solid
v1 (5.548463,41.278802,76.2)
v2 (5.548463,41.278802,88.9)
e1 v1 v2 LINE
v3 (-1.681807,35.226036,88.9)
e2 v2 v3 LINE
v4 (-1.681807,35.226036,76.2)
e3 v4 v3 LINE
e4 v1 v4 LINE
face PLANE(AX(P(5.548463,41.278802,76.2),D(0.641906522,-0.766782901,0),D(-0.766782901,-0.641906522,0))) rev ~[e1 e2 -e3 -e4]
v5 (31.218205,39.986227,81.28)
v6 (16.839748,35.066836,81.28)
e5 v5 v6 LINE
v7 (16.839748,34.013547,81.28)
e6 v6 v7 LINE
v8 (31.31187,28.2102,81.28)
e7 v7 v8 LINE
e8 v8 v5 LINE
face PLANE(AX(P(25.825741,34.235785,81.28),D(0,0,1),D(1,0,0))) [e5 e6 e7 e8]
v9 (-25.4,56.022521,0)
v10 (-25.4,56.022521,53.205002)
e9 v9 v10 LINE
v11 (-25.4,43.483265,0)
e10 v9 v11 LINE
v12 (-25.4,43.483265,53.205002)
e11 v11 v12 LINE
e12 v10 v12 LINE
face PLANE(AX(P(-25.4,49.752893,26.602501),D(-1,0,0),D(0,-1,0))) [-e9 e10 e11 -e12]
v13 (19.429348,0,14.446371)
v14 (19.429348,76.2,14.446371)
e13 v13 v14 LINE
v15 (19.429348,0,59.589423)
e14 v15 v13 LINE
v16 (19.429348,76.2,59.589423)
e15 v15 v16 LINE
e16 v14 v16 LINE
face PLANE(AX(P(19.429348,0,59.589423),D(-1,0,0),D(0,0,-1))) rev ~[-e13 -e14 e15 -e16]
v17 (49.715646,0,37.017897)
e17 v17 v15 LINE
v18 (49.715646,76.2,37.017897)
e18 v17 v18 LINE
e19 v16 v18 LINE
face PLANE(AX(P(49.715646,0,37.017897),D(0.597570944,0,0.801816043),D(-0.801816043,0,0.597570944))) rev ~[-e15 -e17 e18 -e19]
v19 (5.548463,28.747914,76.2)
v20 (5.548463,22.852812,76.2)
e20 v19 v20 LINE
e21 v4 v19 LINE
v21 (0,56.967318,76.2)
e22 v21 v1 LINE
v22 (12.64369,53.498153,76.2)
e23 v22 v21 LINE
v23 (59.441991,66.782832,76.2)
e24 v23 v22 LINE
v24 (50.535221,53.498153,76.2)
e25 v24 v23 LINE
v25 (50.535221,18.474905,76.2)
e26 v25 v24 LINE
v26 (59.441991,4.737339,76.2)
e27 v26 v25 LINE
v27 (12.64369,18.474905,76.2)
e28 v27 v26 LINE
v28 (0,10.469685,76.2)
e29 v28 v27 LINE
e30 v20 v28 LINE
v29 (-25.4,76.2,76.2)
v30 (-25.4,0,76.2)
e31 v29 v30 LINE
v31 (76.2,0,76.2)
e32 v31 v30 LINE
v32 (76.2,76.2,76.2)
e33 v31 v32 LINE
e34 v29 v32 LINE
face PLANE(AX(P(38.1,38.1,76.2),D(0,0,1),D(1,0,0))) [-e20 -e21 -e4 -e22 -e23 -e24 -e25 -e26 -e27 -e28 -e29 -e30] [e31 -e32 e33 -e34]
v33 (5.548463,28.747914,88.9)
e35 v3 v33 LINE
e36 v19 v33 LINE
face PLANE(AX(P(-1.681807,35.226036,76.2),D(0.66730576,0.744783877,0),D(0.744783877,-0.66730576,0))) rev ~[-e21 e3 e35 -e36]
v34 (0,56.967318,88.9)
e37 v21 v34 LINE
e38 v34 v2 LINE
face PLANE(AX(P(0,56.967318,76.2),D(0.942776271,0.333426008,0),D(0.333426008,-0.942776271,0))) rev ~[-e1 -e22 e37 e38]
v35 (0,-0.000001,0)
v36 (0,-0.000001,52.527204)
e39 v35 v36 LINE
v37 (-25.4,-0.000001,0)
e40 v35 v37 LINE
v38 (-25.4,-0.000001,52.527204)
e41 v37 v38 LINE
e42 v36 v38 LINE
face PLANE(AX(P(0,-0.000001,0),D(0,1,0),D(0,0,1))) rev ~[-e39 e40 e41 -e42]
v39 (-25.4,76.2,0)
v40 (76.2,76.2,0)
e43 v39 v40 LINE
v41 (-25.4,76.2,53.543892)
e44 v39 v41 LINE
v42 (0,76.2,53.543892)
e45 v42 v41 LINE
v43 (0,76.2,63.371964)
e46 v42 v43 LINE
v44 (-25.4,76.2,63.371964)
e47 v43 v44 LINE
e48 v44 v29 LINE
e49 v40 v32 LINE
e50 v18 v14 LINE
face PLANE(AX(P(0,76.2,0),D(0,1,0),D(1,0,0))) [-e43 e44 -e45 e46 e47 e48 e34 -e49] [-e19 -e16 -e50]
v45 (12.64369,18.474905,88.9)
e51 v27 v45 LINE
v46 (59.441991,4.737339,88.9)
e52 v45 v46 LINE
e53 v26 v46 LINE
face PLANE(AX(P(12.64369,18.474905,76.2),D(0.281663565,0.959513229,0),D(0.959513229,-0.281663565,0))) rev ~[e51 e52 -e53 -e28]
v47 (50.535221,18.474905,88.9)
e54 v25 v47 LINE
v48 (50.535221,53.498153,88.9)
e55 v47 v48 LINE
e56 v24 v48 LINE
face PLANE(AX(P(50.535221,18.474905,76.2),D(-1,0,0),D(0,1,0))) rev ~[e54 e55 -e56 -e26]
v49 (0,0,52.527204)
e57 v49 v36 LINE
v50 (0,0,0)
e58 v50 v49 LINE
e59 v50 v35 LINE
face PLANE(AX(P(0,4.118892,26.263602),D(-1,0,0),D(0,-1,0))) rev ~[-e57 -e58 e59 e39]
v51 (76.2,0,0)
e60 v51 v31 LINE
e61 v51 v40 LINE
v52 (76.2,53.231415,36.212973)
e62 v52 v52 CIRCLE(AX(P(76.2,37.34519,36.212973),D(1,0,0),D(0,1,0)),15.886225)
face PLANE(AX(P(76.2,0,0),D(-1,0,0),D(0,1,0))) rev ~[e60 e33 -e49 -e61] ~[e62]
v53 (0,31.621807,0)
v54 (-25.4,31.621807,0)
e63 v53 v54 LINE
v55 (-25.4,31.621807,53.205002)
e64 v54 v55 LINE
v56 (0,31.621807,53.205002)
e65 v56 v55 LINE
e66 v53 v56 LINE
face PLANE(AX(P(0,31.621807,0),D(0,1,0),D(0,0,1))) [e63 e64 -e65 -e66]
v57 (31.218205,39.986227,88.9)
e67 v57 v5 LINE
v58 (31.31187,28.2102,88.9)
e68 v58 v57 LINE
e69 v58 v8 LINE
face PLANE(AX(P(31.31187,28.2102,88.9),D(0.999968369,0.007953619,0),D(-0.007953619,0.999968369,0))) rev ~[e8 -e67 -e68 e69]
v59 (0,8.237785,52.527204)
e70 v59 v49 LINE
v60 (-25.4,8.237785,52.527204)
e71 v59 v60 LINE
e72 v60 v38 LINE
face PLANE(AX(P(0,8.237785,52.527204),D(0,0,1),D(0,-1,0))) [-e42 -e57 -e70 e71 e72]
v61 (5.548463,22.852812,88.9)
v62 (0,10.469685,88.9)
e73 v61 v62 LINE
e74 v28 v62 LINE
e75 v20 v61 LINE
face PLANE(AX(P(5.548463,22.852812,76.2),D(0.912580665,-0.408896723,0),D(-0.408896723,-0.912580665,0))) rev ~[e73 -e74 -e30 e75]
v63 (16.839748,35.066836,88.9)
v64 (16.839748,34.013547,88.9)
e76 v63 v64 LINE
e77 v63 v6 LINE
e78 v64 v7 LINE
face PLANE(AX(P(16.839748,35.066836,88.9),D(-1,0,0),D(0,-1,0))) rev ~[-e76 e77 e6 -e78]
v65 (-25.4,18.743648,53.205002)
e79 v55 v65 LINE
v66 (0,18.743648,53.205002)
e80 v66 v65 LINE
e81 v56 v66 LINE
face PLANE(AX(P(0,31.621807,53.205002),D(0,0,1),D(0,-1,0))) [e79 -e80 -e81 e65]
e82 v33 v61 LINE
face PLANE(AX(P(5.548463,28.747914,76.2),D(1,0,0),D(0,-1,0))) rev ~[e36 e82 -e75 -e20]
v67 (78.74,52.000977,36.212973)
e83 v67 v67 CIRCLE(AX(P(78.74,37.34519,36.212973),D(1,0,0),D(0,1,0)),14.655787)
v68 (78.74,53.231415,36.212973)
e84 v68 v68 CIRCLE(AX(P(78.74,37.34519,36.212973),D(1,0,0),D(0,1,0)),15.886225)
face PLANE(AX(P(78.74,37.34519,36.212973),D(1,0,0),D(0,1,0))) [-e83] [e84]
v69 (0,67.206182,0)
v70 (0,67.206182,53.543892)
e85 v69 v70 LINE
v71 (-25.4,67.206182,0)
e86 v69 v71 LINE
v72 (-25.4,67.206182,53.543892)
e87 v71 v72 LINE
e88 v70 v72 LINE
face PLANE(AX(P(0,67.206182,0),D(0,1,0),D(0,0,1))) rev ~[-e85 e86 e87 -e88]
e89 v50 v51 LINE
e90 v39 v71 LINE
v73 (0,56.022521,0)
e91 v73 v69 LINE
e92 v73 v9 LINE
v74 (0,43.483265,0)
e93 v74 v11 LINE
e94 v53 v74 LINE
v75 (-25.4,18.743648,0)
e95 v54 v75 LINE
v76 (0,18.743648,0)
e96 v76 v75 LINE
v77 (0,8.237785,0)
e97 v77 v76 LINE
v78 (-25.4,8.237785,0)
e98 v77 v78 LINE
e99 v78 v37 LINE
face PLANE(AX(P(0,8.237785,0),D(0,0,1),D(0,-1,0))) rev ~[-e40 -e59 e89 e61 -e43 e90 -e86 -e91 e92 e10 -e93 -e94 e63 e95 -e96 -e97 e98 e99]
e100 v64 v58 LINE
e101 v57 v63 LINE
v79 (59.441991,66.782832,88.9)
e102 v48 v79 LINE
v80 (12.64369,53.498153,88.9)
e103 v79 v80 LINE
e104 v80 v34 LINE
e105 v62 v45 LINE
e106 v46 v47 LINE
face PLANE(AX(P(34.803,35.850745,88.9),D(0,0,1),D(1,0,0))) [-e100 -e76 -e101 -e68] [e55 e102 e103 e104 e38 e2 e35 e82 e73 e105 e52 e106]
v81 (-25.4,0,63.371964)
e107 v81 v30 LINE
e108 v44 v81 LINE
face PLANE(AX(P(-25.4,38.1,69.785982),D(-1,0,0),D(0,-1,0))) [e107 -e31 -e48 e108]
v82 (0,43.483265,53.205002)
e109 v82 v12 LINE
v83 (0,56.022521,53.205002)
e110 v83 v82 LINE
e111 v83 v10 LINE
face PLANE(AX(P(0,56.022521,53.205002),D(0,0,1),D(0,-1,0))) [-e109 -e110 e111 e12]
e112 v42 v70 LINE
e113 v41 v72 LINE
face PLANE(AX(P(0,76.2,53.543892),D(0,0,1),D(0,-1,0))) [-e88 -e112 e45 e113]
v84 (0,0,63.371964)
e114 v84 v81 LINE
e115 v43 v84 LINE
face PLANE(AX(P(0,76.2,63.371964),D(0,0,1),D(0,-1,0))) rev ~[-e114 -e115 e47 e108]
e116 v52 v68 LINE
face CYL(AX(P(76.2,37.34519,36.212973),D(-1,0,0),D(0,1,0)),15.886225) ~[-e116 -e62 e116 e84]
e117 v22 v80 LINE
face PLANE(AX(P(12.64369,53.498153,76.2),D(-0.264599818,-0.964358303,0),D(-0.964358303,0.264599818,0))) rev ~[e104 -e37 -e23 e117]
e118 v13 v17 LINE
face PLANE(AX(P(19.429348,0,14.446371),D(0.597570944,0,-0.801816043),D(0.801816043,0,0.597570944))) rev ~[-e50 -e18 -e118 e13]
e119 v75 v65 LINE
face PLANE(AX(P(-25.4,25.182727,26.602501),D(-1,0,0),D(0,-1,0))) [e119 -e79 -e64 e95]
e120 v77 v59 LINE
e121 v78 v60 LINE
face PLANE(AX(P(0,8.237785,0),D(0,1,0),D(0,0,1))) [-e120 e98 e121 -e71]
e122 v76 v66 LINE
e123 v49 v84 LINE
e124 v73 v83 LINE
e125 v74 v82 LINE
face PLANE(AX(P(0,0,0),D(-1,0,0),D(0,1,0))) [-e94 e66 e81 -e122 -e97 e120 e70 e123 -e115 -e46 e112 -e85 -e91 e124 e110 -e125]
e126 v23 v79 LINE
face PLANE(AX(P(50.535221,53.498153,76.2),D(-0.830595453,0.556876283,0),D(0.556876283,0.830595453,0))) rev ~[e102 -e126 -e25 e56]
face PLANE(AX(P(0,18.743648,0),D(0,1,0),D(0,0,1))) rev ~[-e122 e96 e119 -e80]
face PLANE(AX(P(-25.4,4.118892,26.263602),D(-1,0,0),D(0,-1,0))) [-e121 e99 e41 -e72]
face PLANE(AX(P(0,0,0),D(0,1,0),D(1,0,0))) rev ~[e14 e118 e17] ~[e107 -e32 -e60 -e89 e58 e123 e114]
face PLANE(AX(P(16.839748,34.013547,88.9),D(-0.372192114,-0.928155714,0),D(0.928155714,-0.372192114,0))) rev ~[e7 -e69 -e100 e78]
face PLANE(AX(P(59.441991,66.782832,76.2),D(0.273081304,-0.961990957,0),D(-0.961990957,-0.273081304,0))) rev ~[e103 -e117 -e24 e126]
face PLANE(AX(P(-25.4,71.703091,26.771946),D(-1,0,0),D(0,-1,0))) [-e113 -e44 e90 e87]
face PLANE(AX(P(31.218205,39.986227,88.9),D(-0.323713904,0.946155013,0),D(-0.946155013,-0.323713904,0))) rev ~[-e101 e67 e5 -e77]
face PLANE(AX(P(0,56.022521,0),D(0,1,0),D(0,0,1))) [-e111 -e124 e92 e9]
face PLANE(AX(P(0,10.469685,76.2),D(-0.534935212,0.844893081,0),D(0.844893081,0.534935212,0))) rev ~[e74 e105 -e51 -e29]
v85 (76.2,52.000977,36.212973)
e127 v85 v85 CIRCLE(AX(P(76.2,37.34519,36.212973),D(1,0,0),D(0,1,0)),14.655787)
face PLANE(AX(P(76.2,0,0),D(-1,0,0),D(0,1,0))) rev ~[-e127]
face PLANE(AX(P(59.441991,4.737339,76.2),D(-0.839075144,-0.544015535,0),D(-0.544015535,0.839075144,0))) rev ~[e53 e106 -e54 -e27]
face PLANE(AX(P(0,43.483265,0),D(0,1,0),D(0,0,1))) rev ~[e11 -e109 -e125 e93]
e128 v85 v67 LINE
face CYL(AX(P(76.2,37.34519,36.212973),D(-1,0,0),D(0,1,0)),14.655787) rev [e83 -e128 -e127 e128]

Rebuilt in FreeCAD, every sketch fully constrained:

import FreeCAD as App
import Part
import Sketcher

V = App.Vector
Q = App.Units.Quantity


def add_polygon(sketch, points):
    """Adds a closed chain of lines whose ends are joined by coincident constraints."""
    first, n = sketch.GeometryCount, len(points)
    for a, b in zip(points, points[1:] + points[:1]):
        sketch.addGeometry(Part.LineSegment(App.Vector(*a, 0), App.Vector(*b, 0)), False)
    for i in range(n):
        sketch.addConstraint(Sketcher.Constraint("Coincident", first + i, 2, first + (i + 1) % n, 1))

doc = App.newDocument("Part")
body = doc.addObject("PartDesign::Body", "Body")

sketch1 = body.newObject("Sketcher::SketchObject", "Sketch")
sketch1.AttachmentSupport = (doc.getObject("XY_Plane"), [""])
sketch1.MapMode = "FlatFace"
add_polygon(sketch1, [(0, 76), (0, 0), (76, 0), (76, 76)])
sketch1.addConstraint([
    Sketcher.Constraint("Vertical", 0),
    Sketcher.Constraint("Horizontal", 1),
    Sketcher.Constraint("Vertical", 2),
    Sketcher.Constraint("Horizontal", 3),
    Sketcher.Constraint("Coincident", 0, 2, -1, 1),
    Sketcher.Constraint("Equal", 3, 0),
    Sketcher.Constraint("DistanceX", 1, 1, 1, 2, Q("3 in")),
])
pad1 = body.newObject("PartDesign::Pad", "Pad")
pad1.Profile = sketch1
pad1.Length = Q("3 in")

sketch2 = body.newObject("Sketcher::SketchObject", "Sketch001")
sketch2.AttachmentSupport = (doc.getObject("YZ_Plane"), [""])
sketch2.MapMode = "FlatFace"
add_polygon(sketch2, [(56, 53), (56, 0), (43, 0), (43, 53)])
add_polygon(sketch2, [(32, 53), (32, 0), (19, 0), (19, 53)])
add_polygon(sketch2, [(8, 53), (8, 0), (0, 0), (0, 53)])
add_polygon(sketch2, [(76, 54), (76, 0), (67, 0), (67, 54)])
add_polygon(sketch2, [(76, 76), (76, 63), (0, 63), (0, 76)])
sketch2.addConstraint([
    Sketcher.Constraint("Vertical", 0),
    Sketcher.Constraint("Horizontal", 1),
    Sketcher.Constraint("Vertical", 2),
    Sketcher.Constraint("Horizontal", 3),
    Sketcher.Constraint("Vertical", 4),
    Sketcher.Constraint("Horizontal", 5),
    Sketcher.Constraint("Vertical", 6),
    Sketcher.Constraint("Horizontal", 7),
    Sketcher.Constraint("Vertical", 8),
    Sketcher.Constraint("Horizontal", 9),
    Sketcher.Constraint("Vertical", 10),
    Sketcher.Constraint("Horizontal", 11),
    Sketcher.Constraint("Vertical", 12),
    Sketcher.Constraint("Horizontal", 13),
    Sketcher.Constraint("Vertical", 14),
    Sketcher.Constraint("Horizontal", 15),
    Sketcher.Constraint("Vertical", 16),
    Sketcher.Constraint("Horizontal", 17),
    Sketcher.Constraint("Vertical", 18),
    Sketcher.Constraint("Horizontal", 19),
    Sketcher.Constraint("Coincident", 9, 2, -1, 1),
    Sketcher.Constraint("PointOnObject", 0, 2, -1),
    Sketcher.Constraint("PointOnObject", 4, 2, -1),
    Sketcher.Constraint("PointOnObject", 12, 2, -1),
    Sketcher.Constraint("PointOnObject", 17, 2, -2),
    Sketcher.Constraint("Horizontal", 3, 2, 6, 2),
    Sketcher.Constraint("Vertical", 15, 2, 16, 2),
    Sketcher.Constraint("DistanceX", 17, 2, 17, 1, Q("3 in")),
    Sketcher.Constraint("DistanceY", -1, 1, 18, 2, Q("3 in")),
    Sketcher.Constraint("DistanceY", 8, 2, 8, 1, Q("2.0680002 in")),
    Sketcher.Constraint("DistanceX", 5, 2, 5, 1, 12.878159),
    Sketcher.Constraint("DistanceX", 13, 2, 13, 1, 8.993818),
    Sketcher.Constraint("DistanceY", 10, 2, 6, 2, 0.677798),
    Sketcher.Constraint("DistanceX", 1, 2, 1, 1, 12.539256),
    Sketcher.Constraint("DistanceX", 9, 2, 9, 1, 8.237785),
    Sketcher.Constraint("DistanceY", 12, 2, 12, 1, 53.543892),
    Sketcher.Constraint("DistanceY", 16, 2, 16, 1, 12.828036),
    Sketcher.Constraint("DistanceX", -1, 1, 0, 2, 56.022521),
    Sketcher.Constraint("DistanceX", 4, 2, 1, 2, 11.861459),
])
pad2 = body.newObject("PartDesign::Pad", "Pad001")
pad2.Profile = sketch2
pad2.Length = Q("1 in")
pad2.Reversed = True

sketch3 = body.newObject("Sketcher::SketchObject", "Sketch002")
sketch3.AttachmentSupport = (doc.getObject("XZ_Plane"), [""])
sketch3.MapMode = "FlatFace"
add_polygon(sketch3, [(50, 37), (19, 60), (19, 14)])
sketch3.addConstraint([
    Sketcher.Constraint("Vertical", 1),
    Sketcher.Constraint("Equal", 0, 2),
    Sketcher.Constraint("DistanceY", 1, 2, 1, 1, 45.143052),
    Sketcher.Constraint("DistanceX", -1, 1, 0, 2, 19.429348),
    Sketcher.Constraint("DistanceY", -1, 1, 1, 2, 14.446371),
    Sketcher.Constraint("Distance", 0, 37.772128),
])
pocket1 = body.newObject("PartDesign::Pocket", "Pocket")
pocket1.Profile = sketch3
pocket1.Length = Q("10 in")

sketch4 = body.newObject("Sketcher::SketchObject", "Sketch003")
sketch4.AttachmentSupport = (doc.getObject("XY_Plane"), [""])
sketch4.MapMode = "FlatFace"
sketch4.AttachmentOffset = App.Placement(V(0, 0, 3 * 25.4), App.Rotation())
add_polygon(sketch4, [(59, 5), (51, 18), (51, 53), (59, 67), (13, 53), (0, 57), (6, 41), (-2, 35), (6, 29), (6, 23), (0, 10), (13, 18)])
sketch4.addConstraint([
    Sketcher.Constraint("Vertical", 1),
    Sketcher.Constraint("Vertical", 8),
    Sketcher.Constraint("PointOnObject", 4, 2, -2),
    Sketcher.Constraint("PointOnObject", 9, 2, -2),
    Sketcher.Constraint("Horizontal", 1, 2, 3, 2),
    Sketcher.Constraint("Horizontal", 0, 2, 10, 2),
    Sketcher.Constraint("Vertical", 5, 2, 7, 2),
    Sketcher.Constraint("Vertical", 3, 2, 10, 2),
    Sketcher.Constraint("Vertical", 2, 2, 11, 2),
    Sketcher.Constraint("DistanceY", 7, 2, 4, 2, Q("1.1110002 in")),
    Sketcher.Constraint("Distance", 7, Q("0.3821999 in")),
    Sketcher.Constraint("DistanceY", 1, 1, 1, 2, 35.023248),
    Sketcher.Constraint("DistanceX", 3, 2, 2, 2, 46.798301),
    Sketcher.Constraint("Distance", 0, 16.372271),
    Sketcher.Constraint("Distance", 3, 48.64734),
    Sketcher.Constraint("Distance", 9, 13.569351),
    Sketcher.Constraint("Distance", 10, 14.96484),
    Sketcher.Constraint("Distance", 11, 48.772961),
    Sketcher.Constraint("DistanceY", 8, 2, 8, 1, 5.895102),
    Sketcher.Constraint("DistanceX", -1, 1, 0, 2, 50.535221),
    Sketcher.Constraint("DistanceY", -1, 1, 2, 2, 66.782832),
    Sketcher.Constraint("DistanceY", -1, 1, 8, 2, 22.852812),
    Sketcher.Constraint("DistanceY", 5, 2, 3, 2, 12.219351),
    Sketcher.Constraint("DistanceX", 6, 2, 5, 2, 7.23027),
])
pad3 = body.newObject("PartDesign::Pad", "Pad002")
pad3.Profile = sketch4
pad3.Length = Q("0.5 in")

sketch5 = body.newObject("Sketcher::SketchObject", "Sketch004")
sketch5.AttachmentSupport = (doc.getObject("XY_Plane"), [""])
sketch5.MapMode = "FlatFace"
sketch5.AttachmentOffset = App.Placement(V(0, 0, 3.5 * 25.4), App.Rotation())
add_polygon(sketch5, [(16.8, 35.1), (16.8, 34), (31.3, 28.2), (31.2, 40)])
sketch5.addConstraint([
    Sketcher.Constraint("Vertical", 0),
    Sketcher.Constraint("Distance", 2, 11.776399),
    Sketcher.Constraint("DistanceY", 0, 2, 0, 1, 1.053289),
    Sketcher.Constraint("DistanceY", -1, 1, 1, 2, 28.2102),
    Sketcher.Constraint("DistanceX", -1, 1, 0, 2, 16.839748),
    Sketcher.Constraint("DistanceX", -1, 1, 1, 2, 31.31187),
    Sketcher.Constraint("DistanceY", 0, 2, 2, 2, 5.97268),
    Sketcher.Constraint("Distance", 3, 15.196724),
])
pocket2 = body.newObject("PartDesign::Pocket", "Pocket001")
pocket2.Profile = sketch5
pocket2.Length = Q("0.3 in")

sketch6 = body.newObject("Sketcher::SketchObject", "Sketch005")
sketch6.AttachmentSupport = (doc.getObject("YZ_Plane"), [""])
sketch6.MapMode = "FlatFace"
sketch6.AttachmentOffset = App.Placement(V(0, 0, 3 * 25.4), App.Rotation())
sketch6.addGeometry([
    Part.Circle(V(37, 36, 0), V(0, 0, 1), 16),
    Part.Circle(V(37, 36, 0), V(0, 0, 1), 15),
], False)
sketch6.addConstraint([
    Sketcher.Constraint("Coincident", 1, 3, 0, 3),
    Sketcher.Constraint("Diameter", 0, 31.77245),
    Sketcher.Constraint("Diameter", 1, 29.311574),
    Sketcher.Constraint("DistanceX", -1, 1, 0, 3, 37.34519),
    Sketcher.Constraint("DistanceY", -1, 1, 0, 3, 36.212973),
])
pad4 = body.newObject("PartDesign::Pad", "Pad003")
pad4.Profile = sketch6
pad4.Length = Q("0.1 in")

doc.recompute()
